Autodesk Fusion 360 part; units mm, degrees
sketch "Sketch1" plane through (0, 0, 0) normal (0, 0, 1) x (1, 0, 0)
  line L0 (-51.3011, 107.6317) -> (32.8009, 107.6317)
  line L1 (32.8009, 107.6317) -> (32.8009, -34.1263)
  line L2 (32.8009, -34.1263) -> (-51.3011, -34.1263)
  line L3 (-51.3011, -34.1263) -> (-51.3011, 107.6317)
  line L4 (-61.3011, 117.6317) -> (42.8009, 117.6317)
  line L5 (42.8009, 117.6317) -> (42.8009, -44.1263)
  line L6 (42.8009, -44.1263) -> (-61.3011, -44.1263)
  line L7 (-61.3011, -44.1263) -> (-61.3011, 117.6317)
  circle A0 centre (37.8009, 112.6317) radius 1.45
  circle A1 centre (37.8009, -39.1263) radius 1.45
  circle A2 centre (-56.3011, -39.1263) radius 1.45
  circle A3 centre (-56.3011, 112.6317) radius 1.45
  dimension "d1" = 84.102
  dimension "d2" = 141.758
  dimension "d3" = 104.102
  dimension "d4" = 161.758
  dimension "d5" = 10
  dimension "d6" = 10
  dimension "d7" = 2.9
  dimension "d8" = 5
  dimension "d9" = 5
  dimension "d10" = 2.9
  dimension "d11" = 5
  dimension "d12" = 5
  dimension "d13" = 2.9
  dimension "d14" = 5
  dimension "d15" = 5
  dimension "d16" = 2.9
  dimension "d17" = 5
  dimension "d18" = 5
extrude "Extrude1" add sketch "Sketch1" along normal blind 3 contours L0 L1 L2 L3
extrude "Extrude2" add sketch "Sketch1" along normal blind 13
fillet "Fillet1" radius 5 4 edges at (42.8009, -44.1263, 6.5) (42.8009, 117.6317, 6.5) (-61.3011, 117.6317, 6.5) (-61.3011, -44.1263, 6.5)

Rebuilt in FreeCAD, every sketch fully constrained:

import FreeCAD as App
import Part
import Sketcher

V = App.Vector


def edges_at(feature, points):
    """Names of the edges that pass closest to the given points."""
    edges = feature.Shape.Edges
    near = lambda p: min(range(len(edges)), key=lambda i: edges[i].distToShape(Part.Vertex(*p))[0])
    return sorted({f"Edge{near(p) + 1}" for p in points})


def add_polygon(sketch, points):
    """Adds a closed chain of lines whose ends are joined by coincident constraints."""
    first, n = sketch.GeometryCount, len(points)
    for a, b in zip(points, points[1:] + points[:1]):
        sketch.addGeometry(Part.LineSegment(App.Vector(*a, 0), App.Vector(*b, 0)), False)
    for i in range(n):
        sketch.addConstraint(Sketcher.Constraint("Coincident", first + i, 2, first + (i + 1) % n, 1))

doc = App.newDocument("Part")
body = doc.addObject("PartDesign::Body", "Body")

sketch1 = body.newObject("Sketcher::SketchObject", "Sketch")
sketch1.AttachmentSupport = (doc.getObject("XY_Plane"), [""])
sketch1.MapMode = "FlatFace"
add_polygon(sketch1, [(33, 108), (-51, 108), (-51, -34), (33, -34)])
sketch1.addConstraint([
    Sketcher.Constraint("Horizontal", 0),
    Sketcher.Constraint("Vertical", 1),
    Sketcher.Constraint("Horizontal", 2),
    Sketcher.Constraint("Vertical", 3),
    Sketcher.Constraint("DistanceX", 0, 2, 0, 1, 84.102),
    Sketcher.Constraint("DistanceY", 1, 2, 1, 1, 141.758),
    Sketcher.Constraint("DistanceX", 0, 2, -1, 1, 51.301),
    Sketcher.Constraint("DistanceY", -1, 1, 0, 2, 107.6317),
])
pad1 = body.newObject("PartDesign::Pad", "Pad")
pad1.Profile = sketch1
pad1.Length = 3

sketch2 = body.newObject("Sketcher::SketchObject", "Sketch001")
sketch2.AttachmentSupport = (doc.getObject("XY_Plane"), [""])
sketch2.MapMode = "FlatFace"
add_polygon(sketch2, [(42.8, 117.6), (-61.3, 117.6), (-61.3, -44.1), (42.8, -44.1)])
sketch2.addGeometry(Part.Circle(V(-56.3, -39.1, 0), V(0, 0, 1), 1.4), False)
sketch2.addGeometry(Part.Circle(V(37.8, -39.1, 0), V(0, 0, 1), 1.4), False)
sketch2.addGeometry(Part.Circle(V(-56.3, 112.6, 0), V(0, 0, 1), 1.4), False)
add_polygon(sketch2, [(-51.3, -34.1), (-51.3, 107.6), (32.8, 107.6), (32.8, -34.1)])
sketch2.addGeometry(Part.Circle(V(37.8, 112.6, 0), V(0, 0, 1), 1.4), False)
sketch2.addConstraint([
    Sketcher.Constraint("Horizontal", 0),
    Sketcher.Constraint("Vertical", 1),
    Sketcher.Constraint("Horizontal", 2),
    Sketcher.Constraint("Vertical", 3),
    Sketcher.Constraint("Vertical", 7),
    Sketcher.Constraint("Horizontal", 8),
    Sketcher.Constraint("Vertical", 9),
    Sketcher.Constraint("Horizontal", 10),
    Sketcher.Constraint("Equal", 4, 5),
    Sketcher.Constraint("Equal", 5, 6),
    Sketcher.Constraint("Equal", 6, 11),
    Sketcher.Constraint("Horizontal", 4, 3, 5, 3),
    Sketcher.Constraint("Horizontal", 6, 3, 11, 3),
    Sketcher.Constraint("Vertical", 4, 3, 6, 3),
    Sketcher.Constraint("Vertical", 5, 3, 11, 3),
    Sketcher.Constraint("Diameter", 4, 2.9),
    Sketcher.Constraint("DistanceX", 0, 2, 6, 3, 5.0),
    Sketcher.Constraint("DistanceY", 6, 3, 0, 2, 5.0),
    Sketcher.Constraint("DistanceY", 1, 2, 4, 3, 5.0),
    Sketcher.Constraint("DistanceX", 5, 3, 2, 2, 5.0),
    Sketcher.Constraint("DistanceX", 6, 3, 7, 2, 5.0),
    Sketcher.Constraint("DistanceY", 7, 2, 6, 3, 5.0),
    Sketcher.Constraint("DistanceX", 8, 2, 11, 3, 5.0),
    Sketcher.Constraint("DistanceY", 5, 3, 9, 2, 5.0),
    Sketcher.Constraint("DistanceX", 0, 2, 0, 1, 104.102),
    Sketcher.Constraint("DistanceY", 1, 2, 1, 1, 161.758),
    Sketcher.Constraint("DistanceX", 4, 3, -1, 1, 56.301),
    Sketcher.Constraint("DistanceY", 4, 3, -1, 1, 39.1263),
])
pad2 = body.newObject("PartDesign::Pad", "Pad001")
pad2.Profile = sketch2
pad2.Length = 13
doc.recompute()

fillet = body.newObject("PartDesign::Fillet", "Fillet")
fillet.Base = (pad2, edges_at(pad2, [
    (42.801, -44.126, 6.5),
    (42.801, 117.632, 6.5),
    (-61.301, 117.632, 6.5),
    (-61.301, -44.126, 6.5),
]))
fillet.Radius = 5

doc.recompute()
